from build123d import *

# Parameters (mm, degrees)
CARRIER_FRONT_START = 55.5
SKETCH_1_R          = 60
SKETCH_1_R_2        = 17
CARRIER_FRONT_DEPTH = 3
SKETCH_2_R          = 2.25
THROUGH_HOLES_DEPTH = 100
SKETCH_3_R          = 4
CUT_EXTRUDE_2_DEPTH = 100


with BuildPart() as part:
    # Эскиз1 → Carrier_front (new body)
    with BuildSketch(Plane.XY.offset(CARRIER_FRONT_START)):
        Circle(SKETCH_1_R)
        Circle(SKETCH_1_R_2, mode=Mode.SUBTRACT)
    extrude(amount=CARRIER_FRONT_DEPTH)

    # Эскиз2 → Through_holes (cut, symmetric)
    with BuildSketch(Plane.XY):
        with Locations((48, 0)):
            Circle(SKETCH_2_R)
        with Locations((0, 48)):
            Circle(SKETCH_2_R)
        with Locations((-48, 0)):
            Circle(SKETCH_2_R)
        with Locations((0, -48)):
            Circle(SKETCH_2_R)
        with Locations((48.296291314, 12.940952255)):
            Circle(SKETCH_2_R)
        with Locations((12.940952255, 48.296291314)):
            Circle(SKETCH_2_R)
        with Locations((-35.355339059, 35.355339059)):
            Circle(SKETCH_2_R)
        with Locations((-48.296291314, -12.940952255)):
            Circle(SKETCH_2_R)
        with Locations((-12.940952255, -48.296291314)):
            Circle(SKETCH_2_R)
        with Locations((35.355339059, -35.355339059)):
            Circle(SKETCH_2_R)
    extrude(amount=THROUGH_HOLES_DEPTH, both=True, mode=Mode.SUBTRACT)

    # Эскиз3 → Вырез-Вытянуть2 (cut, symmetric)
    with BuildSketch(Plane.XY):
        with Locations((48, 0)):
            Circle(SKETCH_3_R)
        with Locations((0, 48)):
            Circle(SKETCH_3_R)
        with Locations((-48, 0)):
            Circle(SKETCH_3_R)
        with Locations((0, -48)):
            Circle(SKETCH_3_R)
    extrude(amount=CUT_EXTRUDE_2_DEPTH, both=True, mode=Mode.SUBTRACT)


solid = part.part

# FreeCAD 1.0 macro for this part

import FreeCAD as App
import Part
import Sketcher

V = App.Vector

doc = App.newDocument("Part")
body = doc.addObject("PartDesign::Body", "Body")

sketch1 = body.newObject("Sketcher::SketchObject", "Sketch")
sketch1.AttachmentSupport = (doc.getObject("XY_Plane"), [""])
sketch1.MapMode = "FlatFace"
sketch1.AttachmentOffset = App.Placement(V(0, 0, 55.5), App.Rotation())
sketch1.addGeometry(Part.Circle(V(0, 0, 0), V(0, 0, 1), 60), False)
sketch1.addGeometry(Part.Circle(V(0, 0, 0), V(0, 0, 1), 17), False)
sketch1.addConstraint(Sketcher.Constraint("Coincident", 0, 3, -1, 1))
sketch1.addConstraint(Sketcher.Constraint("Coincident", 1, 3, -1, 1))
sketch1.addConstraint(Sketcher.Constraint("Diameter", 0, 120.0))
sketch1.addConstraint(Sketcher.Constraint("Diameter", 1, 34.0))
pad1 = body.newObject("PartDesign::Pad", "Pad")
pad1.Profile = sketch1
pad1.Length = 3

sketch2 = body.newObject("Sketcher::SketchObject", "Sketch001")
sketch2.AttachmentSupport = (doc.getObject("XY_Plane"), [""])
sketch2.MapMode = "FlatFace"
sketch2.addGeometry(Part.Circle(V(48, 0, 0), V(0, 0, 1), 2.25), False)
sketch2.addGeometry(Part.Circle(V(0, 48, 0), V(0, 0, 1), 2.25), False)
sketch2.addGeometry(Part.Circle(V(-48, 0, 0), V(0, 0, 1), 2.25), False)
sketch2.addGeometry(Part.Circle(V(0, -48, 0), V(0, 0, 1), 2.25), False)
sketch2.addGeometry(Part.Circle(V(48.296291, 12.940952, 0), V(0, 0, 1), 2.25), False)
sketch2.addGeometry(Part.Circle(V(12.940952, 48.296291, 0), V(0, 0, 1), 2.25), False)
sketch2.addGeometry(Part.Circle(V(-35.355339, 35.355339, 0), V(0, 0, 1), 2.25), False)
sketch2.addGeometry(Part.Circle(V(-48.296291, -12.940952, 0), V(0, 0, 1), 2.25), False)
sketch2.addGeometry(Part.Circle(V(-12.940952, -48.296291, 0), V(0, 0, 1), 2.25), False)
sketch2.addGeometry(Part.Circle(V(35.355339, -35.355339, 0), V(0, 0, 1), 2.25), False)
sketch2.addConstraint(Sketcher.Constraint("Equal", 0, 1))
sketch2.addConstraint(Sketcher.Constraint("Equal", 1, 2))
sketch2.addConstraint(Sketcher.Constraint("Equal", 2, 3))
sketch2.addConstraint(Sketcher.Constraint("Equal", 3, 4))
sketch2.addConstraint(Sketcher.Constraint("Equal", 4, 5))
sketch2.addConstraint(Sketcher.Constraint("Equal", 5, 6))
sketch2.addConstraint(Sketcher.Constraint("Equal", 6, 7))
sketch2.addConstraint(Sketcher.Constraint("Equal", 7, 8))
sketch2.addConstraint(Sketcher.Constraint("Equal", 8, 9))
sketch2.addConstraint(Sketcher.Constraint("Symmetric", 0, 3, 2, 3, -1, 1))
sketch2.addConstraint(Sketcher.Constraint("Symmetric", 1, 3, 3, 3, -1, 1))
sketch2.addConstraint(Sketcher.Constraint("Symmetric", 4, 3, 7, 3, -1, 1))
sketch2.addConstraint(Sketcher.Constraint("Symmetric", 5, 3, 8, 3, -1, 1))
sketch2.addConstraint(Sketcher.Constraint("Symmetric", 6, 3, 9, 3, -1, 1))
sketch2.addConstraint(Sketcher.Constraint("PointOnObject", 0, 3, -1))
sketch2.addConstraint(Sketcher.Constraint("PointOnObject", 1, 3, -2))
sketch2.addConstraint(Sketcher.Constraint("Diameter", 0, 4.5))
sketch2.addConstraint(Sketcher.Constraint("DistanceX", -1, 1, 0, 3, 48.0))
sketch2.addConstraint(Sketcher.Constraint("DistanceY", -1, 1, 1, 3, 48.0))
sketch2.addConstraint(Sketcher.Constraint("DistanceX", -1, 1, 4, 3, 48.296291))
sketch2.addConstraint(Sketcher.Constraint("DistanceY", -1, 1, 5, 3, 48.296291))
sketch2.addConstraint(Sketcher.Constraint("DistanceX", 6, 3, -1, 1, 35.355339))
sketch2.addConstraint(Sketcher.Constraint("DistanceY", -1, 1, 6, 3, 35.355339))
sketch2.addConstraint(Sketcher.Constraint("DistanceX", 5, 3, 4, 3, 35.355339))
sketch2.addConstraint(Sketcher.Constraint("DistanceY", 4, 3, 5, 3, 35.355339))
pocket1 = body.newObject("PartDesign::Pocket", "Pocket")
pocket1.Profile = sketch2
pocket1.Length = 200
pocket1.Midplane = True

sketch3 = body.newObject("Sketcher::SketchObject", "Sketch002")
sketch3.AttachmentSupport = (doc.getObject("XY_Plane"), [""])
sketch3.MapMode = "FlatFace"
sketch3.addGeometry(Part.Circle(V(48, 0, 0), V(0, 0, 1), 4), False)
sketch3.addGeometry(Part.Circle(V(0, 48, 0), V(0, 0, 1), 4), False)
sketch3.addGeometry(Part.Circle(V(-48, 0, 0), V(0, 0, 1), 4), False)
sketch3.addGeometry(Part.Circle(V(0, -48, 0), V(0, 0, 1), 4), False)
sketch3.addConstraint(Sketcher.Constraint("Equal", 0, 1))
sketch3.addConstraint(Sketcher.Constraint("Equal", 1, 2))
sketch3.addConstraint(Sketcher.Constraint("Equal", 2, 3))
sketch3.addConstraint(Sketcher.Constraint("Symmetric", 0, 3, 2, 3, -1, 1))
sketch3.addConstraint(Sketcher.Constraint("Symmetric", 1, 3, 3, 3, -1, 1))
sketch3.addConstraint(Sketcher.Constraint("PointOnObject", 0, 3, -1))
sketch3.addConstraint(Sketcher.Constraint("PointOnObject", 1, 3, -2))
sketch3.addConstraint(Sketcher.Constraint("Diameter", 0, 8.0))
sketch3.addConstraint(Sketcher.Constraint("DistanceX", -1, 1, 0, 3, 48.0))
sketch3.addConstraint(Sketcher.Constraint("DistanceY", -1, 1, 1, 3, 48.0))
pocket2 = body.newObject("PartDesign::Pocket", "Pocket001")
pocket2.Profile = sketch3
pocket2.Length = 200
pocket2.Midplane = True

doc.recompute()
